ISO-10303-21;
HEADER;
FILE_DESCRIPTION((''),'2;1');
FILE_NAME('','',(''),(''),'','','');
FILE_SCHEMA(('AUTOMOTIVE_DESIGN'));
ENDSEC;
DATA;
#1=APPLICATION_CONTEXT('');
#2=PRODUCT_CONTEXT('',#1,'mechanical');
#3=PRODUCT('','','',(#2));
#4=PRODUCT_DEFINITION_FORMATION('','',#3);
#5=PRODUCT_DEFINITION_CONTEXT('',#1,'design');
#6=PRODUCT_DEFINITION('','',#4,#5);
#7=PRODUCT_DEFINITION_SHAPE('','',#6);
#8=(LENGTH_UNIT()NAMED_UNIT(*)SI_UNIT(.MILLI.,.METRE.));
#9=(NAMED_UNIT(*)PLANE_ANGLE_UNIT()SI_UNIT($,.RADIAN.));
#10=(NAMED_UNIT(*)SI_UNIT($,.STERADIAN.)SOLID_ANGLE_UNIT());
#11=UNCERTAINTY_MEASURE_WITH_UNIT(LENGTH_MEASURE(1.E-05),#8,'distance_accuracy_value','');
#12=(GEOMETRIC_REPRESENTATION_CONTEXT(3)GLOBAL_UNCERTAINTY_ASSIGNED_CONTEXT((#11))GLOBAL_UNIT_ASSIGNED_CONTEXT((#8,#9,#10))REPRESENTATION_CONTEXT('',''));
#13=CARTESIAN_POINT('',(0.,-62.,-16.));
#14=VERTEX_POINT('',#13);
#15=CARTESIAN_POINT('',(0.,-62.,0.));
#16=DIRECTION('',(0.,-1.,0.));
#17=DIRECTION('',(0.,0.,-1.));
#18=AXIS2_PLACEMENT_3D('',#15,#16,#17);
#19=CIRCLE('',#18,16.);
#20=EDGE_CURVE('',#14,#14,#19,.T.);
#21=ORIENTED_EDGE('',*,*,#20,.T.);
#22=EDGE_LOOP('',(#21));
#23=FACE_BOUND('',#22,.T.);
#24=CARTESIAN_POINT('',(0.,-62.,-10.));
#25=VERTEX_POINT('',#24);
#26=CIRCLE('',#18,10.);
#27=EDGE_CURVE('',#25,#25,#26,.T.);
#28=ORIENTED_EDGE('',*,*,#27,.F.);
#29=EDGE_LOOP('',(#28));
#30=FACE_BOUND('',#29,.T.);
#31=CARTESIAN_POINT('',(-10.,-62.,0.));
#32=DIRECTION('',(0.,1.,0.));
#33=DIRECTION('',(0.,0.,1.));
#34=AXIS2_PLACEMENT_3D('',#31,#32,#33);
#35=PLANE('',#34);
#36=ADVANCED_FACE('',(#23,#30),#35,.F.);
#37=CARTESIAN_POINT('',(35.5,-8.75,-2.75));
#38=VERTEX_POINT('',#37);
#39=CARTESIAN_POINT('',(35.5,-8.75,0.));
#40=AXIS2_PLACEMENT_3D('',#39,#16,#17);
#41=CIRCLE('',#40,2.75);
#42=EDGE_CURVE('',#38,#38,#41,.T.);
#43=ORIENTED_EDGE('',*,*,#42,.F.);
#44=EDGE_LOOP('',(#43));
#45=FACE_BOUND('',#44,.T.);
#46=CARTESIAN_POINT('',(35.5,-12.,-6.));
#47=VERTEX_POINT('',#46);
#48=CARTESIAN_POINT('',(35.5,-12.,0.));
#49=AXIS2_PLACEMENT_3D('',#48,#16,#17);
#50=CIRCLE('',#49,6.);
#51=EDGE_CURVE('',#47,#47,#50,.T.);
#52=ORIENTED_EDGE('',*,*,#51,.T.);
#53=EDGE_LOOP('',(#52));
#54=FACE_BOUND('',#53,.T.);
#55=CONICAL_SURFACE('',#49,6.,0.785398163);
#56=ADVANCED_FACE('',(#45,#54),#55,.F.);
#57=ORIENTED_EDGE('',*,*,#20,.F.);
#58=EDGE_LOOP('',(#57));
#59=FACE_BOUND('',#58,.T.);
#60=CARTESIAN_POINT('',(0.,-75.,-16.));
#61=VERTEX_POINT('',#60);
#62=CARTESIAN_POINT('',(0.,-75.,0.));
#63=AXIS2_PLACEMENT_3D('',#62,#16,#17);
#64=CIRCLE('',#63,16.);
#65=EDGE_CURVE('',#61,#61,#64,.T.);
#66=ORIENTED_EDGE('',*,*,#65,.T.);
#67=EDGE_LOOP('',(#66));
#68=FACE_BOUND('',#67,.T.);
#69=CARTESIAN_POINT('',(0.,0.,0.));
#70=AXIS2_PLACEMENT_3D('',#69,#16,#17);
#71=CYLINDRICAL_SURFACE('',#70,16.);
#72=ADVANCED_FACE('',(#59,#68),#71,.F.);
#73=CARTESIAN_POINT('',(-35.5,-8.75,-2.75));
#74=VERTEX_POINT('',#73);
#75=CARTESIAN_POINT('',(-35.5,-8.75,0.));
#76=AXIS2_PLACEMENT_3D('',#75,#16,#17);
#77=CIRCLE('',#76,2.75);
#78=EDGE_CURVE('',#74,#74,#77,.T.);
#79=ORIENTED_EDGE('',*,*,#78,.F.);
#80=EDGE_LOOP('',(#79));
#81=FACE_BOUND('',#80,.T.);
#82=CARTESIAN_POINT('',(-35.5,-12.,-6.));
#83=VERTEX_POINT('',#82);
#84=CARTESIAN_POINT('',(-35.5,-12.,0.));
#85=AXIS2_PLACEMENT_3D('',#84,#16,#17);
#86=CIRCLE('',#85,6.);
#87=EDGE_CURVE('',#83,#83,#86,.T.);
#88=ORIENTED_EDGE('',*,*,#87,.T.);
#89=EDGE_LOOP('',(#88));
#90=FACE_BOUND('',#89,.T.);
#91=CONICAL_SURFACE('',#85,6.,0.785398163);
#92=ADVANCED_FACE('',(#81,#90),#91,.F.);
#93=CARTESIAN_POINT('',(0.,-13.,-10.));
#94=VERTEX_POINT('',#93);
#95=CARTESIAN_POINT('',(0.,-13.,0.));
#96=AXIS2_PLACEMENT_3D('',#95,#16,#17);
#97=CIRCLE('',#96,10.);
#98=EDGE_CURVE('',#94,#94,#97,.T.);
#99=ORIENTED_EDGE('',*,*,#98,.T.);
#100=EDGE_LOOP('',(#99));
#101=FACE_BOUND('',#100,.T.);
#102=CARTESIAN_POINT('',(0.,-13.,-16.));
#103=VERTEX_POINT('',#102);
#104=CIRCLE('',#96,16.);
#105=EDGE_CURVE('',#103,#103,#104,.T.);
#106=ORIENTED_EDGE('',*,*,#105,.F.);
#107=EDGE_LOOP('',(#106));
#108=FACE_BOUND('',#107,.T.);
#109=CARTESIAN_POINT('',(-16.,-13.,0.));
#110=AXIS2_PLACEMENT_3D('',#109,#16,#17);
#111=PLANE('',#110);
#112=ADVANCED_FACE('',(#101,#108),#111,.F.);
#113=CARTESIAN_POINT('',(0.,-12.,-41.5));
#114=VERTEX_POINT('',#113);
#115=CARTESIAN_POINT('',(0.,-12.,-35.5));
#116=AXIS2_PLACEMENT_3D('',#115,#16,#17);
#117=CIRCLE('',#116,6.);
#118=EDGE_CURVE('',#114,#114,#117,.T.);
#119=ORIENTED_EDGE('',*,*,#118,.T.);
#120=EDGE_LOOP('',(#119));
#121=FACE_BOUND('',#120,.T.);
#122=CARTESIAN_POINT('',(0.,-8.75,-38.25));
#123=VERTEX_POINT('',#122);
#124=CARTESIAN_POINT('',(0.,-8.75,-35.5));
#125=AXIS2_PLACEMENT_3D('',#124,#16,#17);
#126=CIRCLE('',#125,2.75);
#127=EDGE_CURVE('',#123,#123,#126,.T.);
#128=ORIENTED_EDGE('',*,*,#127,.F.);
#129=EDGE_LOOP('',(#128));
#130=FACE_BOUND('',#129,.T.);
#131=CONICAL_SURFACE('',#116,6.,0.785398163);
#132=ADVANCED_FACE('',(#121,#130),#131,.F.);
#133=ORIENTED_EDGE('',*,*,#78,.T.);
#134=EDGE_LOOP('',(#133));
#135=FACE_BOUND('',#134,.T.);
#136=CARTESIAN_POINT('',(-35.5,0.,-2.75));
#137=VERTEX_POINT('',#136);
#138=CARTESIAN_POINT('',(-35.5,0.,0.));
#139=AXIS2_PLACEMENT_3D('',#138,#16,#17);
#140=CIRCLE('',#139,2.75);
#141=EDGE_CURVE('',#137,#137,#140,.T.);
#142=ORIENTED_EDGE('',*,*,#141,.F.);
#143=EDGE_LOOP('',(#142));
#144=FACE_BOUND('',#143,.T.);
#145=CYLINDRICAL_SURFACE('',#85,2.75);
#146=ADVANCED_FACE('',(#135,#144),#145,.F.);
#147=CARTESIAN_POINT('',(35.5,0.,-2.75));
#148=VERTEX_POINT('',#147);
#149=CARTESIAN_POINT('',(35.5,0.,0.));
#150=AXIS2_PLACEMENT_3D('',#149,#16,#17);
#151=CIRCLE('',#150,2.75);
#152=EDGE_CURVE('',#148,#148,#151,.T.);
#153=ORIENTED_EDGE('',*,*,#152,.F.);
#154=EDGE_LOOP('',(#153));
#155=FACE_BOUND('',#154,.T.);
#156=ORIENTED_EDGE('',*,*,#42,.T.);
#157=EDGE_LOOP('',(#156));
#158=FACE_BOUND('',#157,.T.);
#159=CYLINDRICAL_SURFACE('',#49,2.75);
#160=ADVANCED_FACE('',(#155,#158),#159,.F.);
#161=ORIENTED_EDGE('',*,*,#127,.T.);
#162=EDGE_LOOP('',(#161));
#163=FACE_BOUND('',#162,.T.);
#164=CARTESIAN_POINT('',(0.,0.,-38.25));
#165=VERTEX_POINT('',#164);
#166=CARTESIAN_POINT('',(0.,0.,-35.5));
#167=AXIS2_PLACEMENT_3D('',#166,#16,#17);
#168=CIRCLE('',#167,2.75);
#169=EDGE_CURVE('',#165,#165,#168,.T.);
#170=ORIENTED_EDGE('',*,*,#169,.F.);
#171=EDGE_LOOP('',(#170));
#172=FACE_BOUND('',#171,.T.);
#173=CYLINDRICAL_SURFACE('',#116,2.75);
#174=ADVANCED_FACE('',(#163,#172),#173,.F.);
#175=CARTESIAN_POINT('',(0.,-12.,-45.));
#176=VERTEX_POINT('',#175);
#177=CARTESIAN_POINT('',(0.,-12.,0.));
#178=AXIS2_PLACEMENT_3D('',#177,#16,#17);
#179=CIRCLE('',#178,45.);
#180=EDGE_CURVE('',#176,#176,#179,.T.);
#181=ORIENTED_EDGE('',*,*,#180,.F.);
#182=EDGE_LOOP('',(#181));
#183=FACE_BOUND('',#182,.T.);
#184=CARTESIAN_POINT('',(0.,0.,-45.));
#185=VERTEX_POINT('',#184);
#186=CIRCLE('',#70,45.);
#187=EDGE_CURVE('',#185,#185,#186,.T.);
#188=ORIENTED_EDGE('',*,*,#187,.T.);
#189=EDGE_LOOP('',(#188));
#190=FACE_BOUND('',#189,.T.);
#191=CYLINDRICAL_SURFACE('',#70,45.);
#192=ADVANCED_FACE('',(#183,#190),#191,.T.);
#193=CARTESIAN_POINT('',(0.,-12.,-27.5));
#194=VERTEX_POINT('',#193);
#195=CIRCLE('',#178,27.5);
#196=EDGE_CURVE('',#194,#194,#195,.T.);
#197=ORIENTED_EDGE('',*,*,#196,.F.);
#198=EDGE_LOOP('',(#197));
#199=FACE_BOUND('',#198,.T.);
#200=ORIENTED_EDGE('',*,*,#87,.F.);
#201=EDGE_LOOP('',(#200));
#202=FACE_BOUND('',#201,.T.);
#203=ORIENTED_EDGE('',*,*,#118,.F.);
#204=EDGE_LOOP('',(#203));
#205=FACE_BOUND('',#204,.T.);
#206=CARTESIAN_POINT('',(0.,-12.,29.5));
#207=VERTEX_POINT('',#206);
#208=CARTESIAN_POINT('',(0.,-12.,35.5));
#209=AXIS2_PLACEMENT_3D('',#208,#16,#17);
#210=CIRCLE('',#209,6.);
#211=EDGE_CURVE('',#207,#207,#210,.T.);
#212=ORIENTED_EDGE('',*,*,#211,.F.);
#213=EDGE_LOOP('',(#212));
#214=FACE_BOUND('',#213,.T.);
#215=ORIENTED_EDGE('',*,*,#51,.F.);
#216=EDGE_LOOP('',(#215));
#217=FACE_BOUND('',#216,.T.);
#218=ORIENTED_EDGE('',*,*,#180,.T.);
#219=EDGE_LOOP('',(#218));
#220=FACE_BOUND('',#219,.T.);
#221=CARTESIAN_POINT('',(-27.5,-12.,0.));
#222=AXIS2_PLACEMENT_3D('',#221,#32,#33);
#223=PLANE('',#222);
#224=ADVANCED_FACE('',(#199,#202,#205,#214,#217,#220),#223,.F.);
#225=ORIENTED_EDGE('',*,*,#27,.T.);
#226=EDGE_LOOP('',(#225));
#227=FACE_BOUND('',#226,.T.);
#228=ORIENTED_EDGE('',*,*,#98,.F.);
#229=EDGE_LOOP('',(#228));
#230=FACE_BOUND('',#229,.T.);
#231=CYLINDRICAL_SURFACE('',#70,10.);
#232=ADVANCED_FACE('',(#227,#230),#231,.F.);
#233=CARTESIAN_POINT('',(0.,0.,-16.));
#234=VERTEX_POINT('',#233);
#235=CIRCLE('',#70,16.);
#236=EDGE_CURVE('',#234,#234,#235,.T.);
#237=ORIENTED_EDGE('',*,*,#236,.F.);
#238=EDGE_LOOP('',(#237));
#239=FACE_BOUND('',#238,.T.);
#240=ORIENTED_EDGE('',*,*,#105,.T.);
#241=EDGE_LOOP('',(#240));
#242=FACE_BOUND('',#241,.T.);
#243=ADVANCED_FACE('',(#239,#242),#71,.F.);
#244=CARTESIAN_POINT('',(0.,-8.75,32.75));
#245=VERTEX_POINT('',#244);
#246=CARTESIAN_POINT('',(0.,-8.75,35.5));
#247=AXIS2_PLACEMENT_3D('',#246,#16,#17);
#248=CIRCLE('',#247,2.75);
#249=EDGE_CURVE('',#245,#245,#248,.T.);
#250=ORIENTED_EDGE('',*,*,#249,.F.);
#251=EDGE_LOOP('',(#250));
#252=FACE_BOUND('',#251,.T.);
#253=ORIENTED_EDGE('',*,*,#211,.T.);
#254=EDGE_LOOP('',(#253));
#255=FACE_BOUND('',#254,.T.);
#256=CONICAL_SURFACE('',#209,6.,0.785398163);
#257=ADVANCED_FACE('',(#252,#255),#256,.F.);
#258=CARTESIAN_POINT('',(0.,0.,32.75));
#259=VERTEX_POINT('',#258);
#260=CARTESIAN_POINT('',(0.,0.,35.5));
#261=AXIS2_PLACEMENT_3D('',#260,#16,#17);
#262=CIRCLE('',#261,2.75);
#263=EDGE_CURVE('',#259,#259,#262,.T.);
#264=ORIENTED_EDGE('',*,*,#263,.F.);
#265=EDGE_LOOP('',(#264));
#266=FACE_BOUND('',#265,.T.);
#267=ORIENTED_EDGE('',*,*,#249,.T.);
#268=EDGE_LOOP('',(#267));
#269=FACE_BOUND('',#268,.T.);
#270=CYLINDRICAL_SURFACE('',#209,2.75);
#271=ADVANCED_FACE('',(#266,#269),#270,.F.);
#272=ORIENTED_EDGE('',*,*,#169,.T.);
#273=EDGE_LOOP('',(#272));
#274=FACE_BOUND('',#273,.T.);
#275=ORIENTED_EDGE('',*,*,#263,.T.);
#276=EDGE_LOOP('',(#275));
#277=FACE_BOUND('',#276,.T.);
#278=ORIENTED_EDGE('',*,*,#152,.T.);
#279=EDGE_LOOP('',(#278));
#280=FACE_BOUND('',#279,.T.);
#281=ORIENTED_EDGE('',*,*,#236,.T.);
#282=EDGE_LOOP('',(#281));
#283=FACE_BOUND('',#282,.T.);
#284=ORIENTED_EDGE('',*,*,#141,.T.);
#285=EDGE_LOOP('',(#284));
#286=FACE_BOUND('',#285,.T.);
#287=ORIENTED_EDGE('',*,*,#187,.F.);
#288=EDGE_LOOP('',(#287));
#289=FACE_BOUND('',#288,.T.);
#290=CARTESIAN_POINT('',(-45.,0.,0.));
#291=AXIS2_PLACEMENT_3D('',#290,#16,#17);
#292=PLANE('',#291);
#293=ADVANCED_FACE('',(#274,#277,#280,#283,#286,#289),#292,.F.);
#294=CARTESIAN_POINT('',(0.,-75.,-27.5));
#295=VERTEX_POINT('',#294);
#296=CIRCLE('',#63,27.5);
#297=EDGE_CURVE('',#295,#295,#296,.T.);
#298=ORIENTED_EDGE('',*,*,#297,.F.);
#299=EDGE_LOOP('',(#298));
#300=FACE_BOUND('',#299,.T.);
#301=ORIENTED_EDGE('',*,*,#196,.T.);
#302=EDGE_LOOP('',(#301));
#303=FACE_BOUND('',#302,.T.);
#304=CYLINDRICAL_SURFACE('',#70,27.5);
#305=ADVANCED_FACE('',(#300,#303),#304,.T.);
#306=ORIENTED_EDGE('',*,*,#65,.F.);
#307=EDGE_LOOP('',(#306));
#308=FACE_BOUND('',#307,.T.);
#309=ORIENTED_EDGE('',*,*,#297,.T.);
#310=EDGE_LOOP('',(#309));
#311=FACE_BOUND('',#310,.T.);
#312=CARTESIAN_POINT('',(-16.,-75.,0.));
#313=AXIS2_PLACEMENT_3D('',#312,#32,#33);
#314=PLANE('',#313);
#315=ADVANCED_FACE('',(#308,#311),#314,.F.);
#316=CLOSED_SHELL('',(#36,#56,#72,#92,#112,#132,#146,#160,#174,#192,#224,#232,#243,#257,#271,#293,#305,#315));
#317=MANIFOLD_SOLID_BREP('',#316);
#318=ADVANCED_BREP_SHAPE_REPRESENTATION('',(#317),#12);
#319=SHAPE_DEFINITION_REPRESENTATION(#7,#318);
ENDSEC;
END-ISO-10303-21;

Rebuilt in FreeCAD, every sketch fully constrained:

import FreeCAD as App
import Part
import Sketcher

V = App.Vector

doc = App.newDocument("Part")
body = doc.addObject("PartDesign::Body", "Body")

# Sketch on XY plane
sketch1 = body.newObject("Sketcher::SketchObject", "Sketch")
sketch1.AttachmentSupport = (doc.getObject("XY_Plane"), [""])
sketch1.MapMode = "FlatFace"
sketch1.addGeometry(Part.LineSegment(V(-16, 0, 0), V(-45, 0, 0)), False)
sketch1.addGeometry(Part.LineSegment(V(-45, 0, 0), V(-45, -12, 0)), False)
sketch1.addGeometry(Part.LineSegment(V(-45, -12, 0), V(-28, -12, 0)), False)
sketch1.addGeometry(Part.LineSegment(V(-28, -12, 0), V(-28, -75, 0)), False)
sketch1.addGeometry(Part.LineSegment(V(-28, -75, 0), V(-16, -75, 0)), False)
sketch1.addGeometry(Part.LineSegment(V(-16, -75, 0), V(-16, -62, 0)), False)
sketch1.addGeometry(Part.LineSegment(V(-16, -62, 0), V(-10, -62, 0)), False)
sketch1.addGeometry(Part.LineSegment(V(-10, -62, 0), V(-10, -13, 0)), False)
sketch1.addGeometry(Part.LineSegment(V(-10, -13, 0), V(-16, -13, 0)), False)
sketch1.addGeometry(Part.LineSegment(V(-16, -13, 0), V(-16, 0, 0)), False)
sketch1.addConstraint(Sketcher.Constraint("Coincident", 0, 2, 1, 1))
sketch1.addConstraint(Sketcher.Constraint("Coincident", 1, 2, 2, 1))
sketch1.addConstraint(Sketcher.Constraint("Coincident", 2, 2, 3, 1))
sketch1.addConstraint(Sketcher.Constraint("Coincident", 3, 2, 4, 1))
sketch1.addConstraint(Sketcher.Constraint("Coincident", 4, 2, 5, 1))
sketch1.addConstraint(Sketcher.Constraint("Coincident", 5, 2, 6, 1))
sketch1.addConstraint(Sketcher.Constraint("Coincident", 6, 2, 7, 1))
sketch1.addConstraint(Sketcher.Constraint("Coincident", 7, 2, 8, 1))
sketch1.addConstraint(Sketcher.Constraint("Coincident", 8, 2, 9, 1))
sketch1.addConstraint(Sketcher.Constraint("Coincident", 9, 2, 0, 1))
sketch1.addConstraint(Sketcher.Constraint("Horizontal", 0))
sketch1.addConstraint(Sketcher.Constraint("Vertical", 1))
sketch1.addConstraint(Sketcher.Constraint("Horizontal", 2))
sketch1.addConstraint(Sketcher.Constraint("Vertical", 3))
sketch1.addConstraint(Sketcher.Constraint("Horizontal", 4))
sketch1.addConstraint(Sketcher.Constraint("Vertical", 5))
sketch1.addConstraint(Sketcher.Constraint("Horizontal", 6))
sketch1.addConstraint(Sketcher.Constraint("Vertical", 7))
sketch1.addConstraint(Sketcher.Constraint("Horizontal", 8))
sketch1.addConstraint(Sketcher.Constraint("Vertical", 9))
sketch1.addConstraint(Sketcher.Constraint("PointOnObject", 0, 2, -1))
sketch1.addConstraint(Sketcher.Constraint("Vertical", 5, 2, 8, 2))
sketch1.addConstraint(Sketcher.Constraint("Equal", 5, 9))
sketch1.addConstraint(Sketcher.Constraint("DistanceX", 0, 2, 0, 1, 29.0))
sketch1.addConstraint(Sketcher.Constraint("DistanceX", 6, 1, 6, 2, 6.0))
sketch1.addConstraint(Sketcher.Constraint("DistanceY", 1, 2, 1, 1, 12.0))
sketch1.addConstraint(Sketcher.Constraint("DistanceY", 3, 2, 3, 1, 63.0))
sketch1.addConstraint(Sketcher.Constraint("DistanceY", 5, 1, 5, 2, 13.0))
sketch1.addConstraint(Sketcher.Constraint("DistanceX", 2, 1, 2, 2, 17.5))
sketch1.addConstraint(Sketcher.Constraint("DistanceX", 0, 2, -1, 1, 45.0))
revolution = body.newObject("PartDesign::Revolution", "Revolution")
revolution.Profile = sketch1
revolution.ReferenceAxis = (sketch1, ["V_Axis"])
revolution.Angle = 360

# Sketch on XZ plane
sketch2 = body.newObject("Sketcher::SketchObject", "Sketch001")
sketch2.AttachmentSupport = (doc.getObject("XZ_Plane"), [""])
sketch2.MapMode = "FlatFace"
sketch2.AttachmentOffset = App.Placement(V(0, 0, 12), App.Rotation())
sketch2.addGeometry(Part.Circle(V(35.5, 0, 0), V(0, 0, 1), 2.8), False)
sketch2.addGeometry(Part.Circle(V(0, 35.5, 0), V(0, 0, 1), 2.8), False)
sketch2.addGeometry(Part.Circle(V(-35.5, 0, 0), V(0, 0, 1), 2.8), False)
sketch2.addGeometry(Part.Circle(V(0, -35.5, 0), V(0, 0, 1), 2.8), False)
sketch2.addConstraint(Sketcher.Constraint("Equal", 0, 1))
sketch2.addConstraint(Sketcher.Constraint("Equal", 1, 2))
sketch2.addConstraint(Sketcher.Constraint("Equal", 2, 3))
sketch2.addConstraint(Sketcher.Constraint("Symmetric", 0, 3, 2, 3, -1, 1))
sketch2.addConstraint(Sketcher.Constraint("Symmetric", 1, 3, 3, 3, -1, 1))
sketch2.addConstraint(Sketcher.Constraint("PointOnObject", 0, 3, -1))
sketch2.addConstraint(Sketcher.Constraint("PointOnObject", 1, 3, -2))
sketch2.addConstraint(Sketcher.Constraint("Diameter", 0, 5.5))
sketch2.addConstraint(Sketcher.Constraint("DistanceX", 2, 3, 0, 3, 71.0))
sketch2.addConstraint(Sketcher.Constraint("DistanceY", 3, 3, 1, 3, 71.0))
doc.recompute()
hole = body.newObject("PartDesign::Hole", "Hole")
hole.Profile = sketch2
hole.ThreadType = "None"
hole.Diameter = 5.5
hole.DepthType = "ThroughAll"
hole.HoleCutType = "Countersink"
hole.HoleCutDiameter = 12
hole.HoleCutCountersinkAngle = 90

doc.recompute()
